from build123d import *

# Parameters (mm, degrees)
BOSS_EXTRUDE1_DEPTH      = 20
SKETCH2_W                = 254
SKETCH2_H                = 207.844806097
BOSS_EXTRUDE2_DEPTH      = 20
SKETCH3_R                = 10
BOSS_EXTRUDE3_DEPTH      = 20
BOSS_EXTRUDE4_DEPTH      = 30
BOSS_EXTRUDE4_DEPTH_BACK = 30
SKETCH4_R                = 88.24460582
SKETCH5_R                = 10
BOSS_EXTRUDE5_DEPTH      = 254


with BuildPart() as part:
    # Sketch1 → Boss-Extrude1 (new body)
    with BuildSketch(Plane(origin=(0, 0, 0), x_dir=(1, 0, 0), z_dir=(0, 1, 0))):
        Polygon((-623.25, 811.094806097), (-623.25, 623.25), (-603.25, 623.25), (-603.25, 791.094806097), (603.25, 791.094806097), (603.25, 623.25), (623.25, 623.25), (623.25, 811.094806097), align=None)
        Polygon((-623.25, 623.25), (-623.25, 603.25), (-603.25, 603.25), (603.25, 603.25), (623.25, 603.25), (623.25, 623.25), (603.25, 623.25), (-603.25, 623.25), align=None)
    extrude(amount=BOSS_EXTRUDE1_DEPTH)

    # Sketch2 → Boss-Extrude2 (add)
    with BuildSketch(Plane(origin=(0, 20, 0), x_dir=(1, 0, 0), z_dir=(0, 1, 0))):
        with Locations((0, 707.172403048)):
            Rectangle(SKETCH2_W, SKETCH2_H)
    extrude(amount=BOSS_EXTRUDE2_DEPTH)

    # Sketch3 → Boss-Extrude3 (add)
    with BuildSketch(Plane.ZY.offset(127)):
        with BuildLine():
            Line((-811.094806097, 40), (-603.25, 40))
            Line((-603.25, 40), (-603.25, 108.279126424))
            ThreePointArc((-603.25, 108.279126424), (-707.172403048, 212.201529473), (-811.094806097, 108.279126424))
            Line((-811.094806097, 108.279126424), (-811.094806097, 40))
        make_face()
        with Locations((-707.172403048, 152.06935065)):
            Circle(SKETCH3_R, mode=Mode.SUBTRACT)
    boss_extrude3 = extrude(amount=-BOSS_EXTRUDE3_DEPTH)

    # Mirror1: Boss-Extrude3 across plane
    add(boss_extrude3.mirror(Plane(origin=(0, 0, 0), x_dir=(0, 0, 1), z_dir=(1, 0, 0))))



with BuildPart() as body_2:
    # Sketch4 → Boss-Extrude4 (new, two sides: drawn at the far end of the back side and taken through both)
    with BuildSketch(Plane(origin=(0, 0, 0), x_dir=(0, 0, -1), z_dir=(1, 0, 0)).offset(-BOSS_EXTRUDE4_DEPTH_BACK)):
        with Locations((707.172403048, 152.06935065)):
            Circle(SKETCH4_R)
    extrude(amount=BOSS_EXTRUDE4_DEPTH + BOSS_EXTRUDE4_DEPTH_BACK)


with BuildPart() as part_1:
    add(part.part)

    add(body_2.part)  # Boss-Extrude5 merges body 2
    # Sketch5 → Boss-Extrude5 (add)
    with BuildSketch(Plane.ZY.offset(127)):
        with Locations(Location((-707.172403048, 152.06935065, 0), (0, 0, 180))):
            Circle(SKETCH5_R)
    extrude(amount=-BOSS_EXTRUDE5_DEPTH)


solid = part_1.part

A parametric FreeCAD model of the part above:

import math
import FreeCAD as App
import Part
import Sketcher

V = App.Vector
Q = App.Units.Quantity


def add_polygon(sketch, points):
    """Adds a closed chain of lines whose ends are joined by coincident constraints."""
    first, n = sketch.GeometryCount, len(points)
    for a, b in zip(points, points[1:] + points[:1]):
        sketch.addGeometry(Part.LineSegment(App.Vector(*a, 0), App.Vector(*b, 0)), False)
    for i in range(n):
        sketch.addConstraint(Sketcher.Constraint("Coincident", first + i, 2, first + (i + 1) % n, 1))

doc = App.newDocument("Part")
body = doc.addObject("PartDesign::Body", "Body")

sketch1 = body.newObject("Sketcher::SketchObject", "Sketch")
sketch1.AttachmentSupport = (doc.getObject("XZ_Plane"), [""])
sketch1.MapMode = "FlatFace"
add_polygon(sketch1, [(-623, -811), (-623, -603), (623, -603), (623, -811)])
add_polygon(sketch1, [(-603, -623), (-603, -791), (603, -791), (603, -623)])
sketch1.addConstraint(Sketcher.Constraint("Vertical", 0))
sketch1.addConstraint(Sketcher.Constraint("Horizontal", 1))
sketch1.addConstraint(Sketcher.Constraint("Vertical", 2))
sketch1.addConstraint(Sketcher.Constraint("Horizontal", 3))
sketch1.addConstraint(Sketcher.Constraint("Vertical", 4))
sketch1.addConstraint(Sketcher.Constraint("Horizontal", 5))
sketch1.addConstraint(Sketcher.Constraint("Vertical", 6))
sketch1.addConstraint(Sketcher.Constraint("Horizontal", 7))
sketch1.addConstraint(Sketcher.Constraint("DistanceX", 1, 1, 1, 2, Q("1246.5 mm")))
sketch1.addConstraint(Sketcher.Constraint("DistanceX", 5, 1, 5, 2, Q("1206.5 mm")))
sketch1.addConstraint(Sketcher.Constraint("DistanceX", 3, 2, 4, 2, Q("20 mm")))
sketch1.addConstraint(Sketcher.Constraint("DistanceY", 3, 2, 4, 2, Q("20 mm")))
sketch1.addConstraint(Sketcher.Constraint("DistanceY", 6, 2, 1, 2, Q("20 mm")))
sketch1.addConstraint(Sketcher.Constraint("DistanceX", 0, 2, -1, 1, Q("623.25 mm")))
sketch1.addConstraint(Sketcher.Constraint("DistanceY", 0, 2, -1, 1, Q("603.25 mm")))
sketch1.addConstraint(Sketcher.Constraint("DistanceY", 0, 1, 0, 2, Q("207.844806 mm")))
pad1 = body.newObject("PartDesign::Pad", "Pad")
pad1.Profile = sketch1
pad1.Length = 20
pad1.Reversed = True

sketch2 = body.newObject("Sketcher::SketchObject", "Sketch001")
sketch2.AttachmentSupport = (doc.getObject("XZ_Plane"), [""])
sketch2.MapMode = "FlatFace"
sketch2.AttachmentOffset = App.Placement(V(0, 0, -20), App.Rotation())
add_polygon(sketch2, [(-127, -811), (-127, -603), (127, -603), (127, -811)])
sketch2.addConstraint(Sketcher.Constraint("Vertical", 0))
sketch2.addConstraint(Sketcher.Constraint("Horizontal", 1))
sketch2.addConstraint(Sketcher.Constraint("Vertical", 2))
sketch2.addConstraint(Sketcher.Constraint("Horizontal", 3))
sketch2.addConstraint(Sketcher.Constraint("DistanceX", 1, 1, 1, 2, Q("254 mm")))
sketch2.addConstraint(Sketcher.Constraint("DistanceX", 0, 2, -1, 1, Q("127 mm")))
sketch2.addConstraint(Sketcher.Constraint("DistanceY", 0, 2, -1, 1, Q("603.25 mm")))
sketch2.addConstraint(Sketcher.Constraint("DistanceY", 0, 1, 0, 2, Q("207.844806 mm")))
pad2 = body.newObject("PartDesign::Pad", "Pad001")
pad2.Profile = sketch2
pad2.Length = 20
pad2.Reversed = True

sketch3 = body.newObject("Sketcher::SketchObject", "Sketch002")
sketch3.AttachmentSupport = (doc.getObject("YZ_Plane"), [""])
sketch3.MapMode = "FlatFace"
sketch3.AttachmentOffset = App.Placement(V(0, 0, -127), App.Rotation())
sketch3.addGeometry(Part.LineSegment(V(40, -811, 0), V(40, -603, 0)), False)
sketch3.addGeometry(Part.LineSegment(V(40, -603, 0), V(108, -603, 0)), False)
sketch3.addGeometry(Part.ArcOfCircle(Part.Circle(V(108, -707, 0), V(0, 0, 1), 104), math.radians(-90), math.radians(90)), False)
sketch3.addGeometry(Part.LineSegment(V(108, -811, 0), V(40, -811, 0)), False)
sketch3.addGeometry(Part.Circle(V(152, -707, 0), V(0, 0, 1), 10), False)
sketch3.addConstraint(Sketcher.Constraint("Coincident", 0, 2, 1, 1))
sketch3.addConstraint(Sketcher.Constraint("Tangent", 1, 2, 2, 2))
sketch3.addConstraint(Sketcher.Constraint("Tangent", 2, 1, 3, 1))
sketch3.addConstraint(Sketcher.Constraint("Coincident", 3, 2, 0, 1))
sketch3.addConstraint(Sketcher.Constraint("Vertical", 0))
sketch3.addConstraint(Sketcher.Constraint("Horizontal", 1))
sketch3.addConstraint(Sketcher.Constraint("Horizontal", 3))
sketch3.addConstraint(Sketcher.Constraint("Horizontal", 2, 3, 4, 3))
sketch3.addConstraint(Sketcher.Constraint("Diameter", 4, Q("20 mm")))
sketch3.addConstraint(Sketcher.Constraint("DistanceX", -1, 1, 0, 2, Q("40 mm")))
sketch3.addConstraint(Sketcher.Constraint("DistanceY", 0, 2, -1, 1, Q("603.25 mm")))
sketch3.addConstraint(Sketcher.Constraint("Radius", 2, Q("103.922403 mm")))
sketch3.addConstraint(Sketcher.Constraint("DistanceX", 1, 1, 1, 2, Q("68.279126 mm")))
sketch3.addConstraint(Sketcher.Constraint("DistanceX", -1, 1, 4, 3, Q("152.069351 mm")))
pad3 = body.newObject("PartDesign::Pad", "Pad002")
pad3.Profile = sketch3
pad3.Length = 20
doc.recompute()

mirrored = body.newObject("PartDesign::Mirrored", "Mirrored")
mirrored.Originals = [pad3]
mirrored.MirrorPlane = (doc.getObject("YZ_Plane"), [""])
body.Tip = mirrored
body2 = doc.addObject("PartDesign::Body", "Body001")

sketch4 = body2.newObject("Sketcher::SketchObject", "Sketch003")
sketch4.AttachmentSupport = (doc.getObject("YZ_Plane001"), [""])
sketch4.MapMode = "FlatFace"
sketch4.addGeometry(Part.Circle(V(152, -707, 0), V(0, 0, 1), 88), False)
sketch4.addConstraint(Sketcher.Constraint("Diameter", 0, Q("176.489212 mm")))
sketch4.addConstraint(Sketcher.Constraint("DistanceX", -1, 1, 0, 3, Q("152.069351 mm")))
sketch4.addConstraint(Sketcher.Constraint("DistanceY", 0, 3, -1, 1, Q("707.172403 mm")))
pad4 = body2.newObject("PartDesign::Pad", "Pad003")
pad4.Profile = sketch4
pad4.Type = "TwoLengths"
pad4.Length = 30
pad4.Length2 = 30
body.AllowCompound = True
doc.recompute()

boolean = body.newObject("PartDesign::Boolean", "Boolean")
boolean.Type = "Fuse"
boolean.addObjects([body2])

sketch5 = body.newObject("Sketcher::SketchObject", "Sketch004")
sketch5.AttachmentSupport = (doc.getObject("YZ_Plane"), [""])
sketch5.MapMode = "FlatFace"
sketch5.AttachmentOffset = App.Placement(V(0, 0, -127), App.Rotation())
sketch5.addGeometry(Part.Circle(V(152, -707, 0), V(0, 0, 1), 10), False)
sketch5.addConstraint(Sketcher.Constraint("Diameter", 0, Q("20 mm")))
sketch5.addConstraint(Sketcher.Constraint("DistanceX", -1, 1, 0, 3, Q("152.069351 mm")))
sketch5.addConstraint(Sketcher.Constraint("DistanceY", 0, 3, -1, 1, Q("707.172403 mm")))
pad5 = body.newObject("PartDesign::Pad", "Pad004")
pad5.Profile = sketch5
pad5.Length = 254

doc.recompute()
